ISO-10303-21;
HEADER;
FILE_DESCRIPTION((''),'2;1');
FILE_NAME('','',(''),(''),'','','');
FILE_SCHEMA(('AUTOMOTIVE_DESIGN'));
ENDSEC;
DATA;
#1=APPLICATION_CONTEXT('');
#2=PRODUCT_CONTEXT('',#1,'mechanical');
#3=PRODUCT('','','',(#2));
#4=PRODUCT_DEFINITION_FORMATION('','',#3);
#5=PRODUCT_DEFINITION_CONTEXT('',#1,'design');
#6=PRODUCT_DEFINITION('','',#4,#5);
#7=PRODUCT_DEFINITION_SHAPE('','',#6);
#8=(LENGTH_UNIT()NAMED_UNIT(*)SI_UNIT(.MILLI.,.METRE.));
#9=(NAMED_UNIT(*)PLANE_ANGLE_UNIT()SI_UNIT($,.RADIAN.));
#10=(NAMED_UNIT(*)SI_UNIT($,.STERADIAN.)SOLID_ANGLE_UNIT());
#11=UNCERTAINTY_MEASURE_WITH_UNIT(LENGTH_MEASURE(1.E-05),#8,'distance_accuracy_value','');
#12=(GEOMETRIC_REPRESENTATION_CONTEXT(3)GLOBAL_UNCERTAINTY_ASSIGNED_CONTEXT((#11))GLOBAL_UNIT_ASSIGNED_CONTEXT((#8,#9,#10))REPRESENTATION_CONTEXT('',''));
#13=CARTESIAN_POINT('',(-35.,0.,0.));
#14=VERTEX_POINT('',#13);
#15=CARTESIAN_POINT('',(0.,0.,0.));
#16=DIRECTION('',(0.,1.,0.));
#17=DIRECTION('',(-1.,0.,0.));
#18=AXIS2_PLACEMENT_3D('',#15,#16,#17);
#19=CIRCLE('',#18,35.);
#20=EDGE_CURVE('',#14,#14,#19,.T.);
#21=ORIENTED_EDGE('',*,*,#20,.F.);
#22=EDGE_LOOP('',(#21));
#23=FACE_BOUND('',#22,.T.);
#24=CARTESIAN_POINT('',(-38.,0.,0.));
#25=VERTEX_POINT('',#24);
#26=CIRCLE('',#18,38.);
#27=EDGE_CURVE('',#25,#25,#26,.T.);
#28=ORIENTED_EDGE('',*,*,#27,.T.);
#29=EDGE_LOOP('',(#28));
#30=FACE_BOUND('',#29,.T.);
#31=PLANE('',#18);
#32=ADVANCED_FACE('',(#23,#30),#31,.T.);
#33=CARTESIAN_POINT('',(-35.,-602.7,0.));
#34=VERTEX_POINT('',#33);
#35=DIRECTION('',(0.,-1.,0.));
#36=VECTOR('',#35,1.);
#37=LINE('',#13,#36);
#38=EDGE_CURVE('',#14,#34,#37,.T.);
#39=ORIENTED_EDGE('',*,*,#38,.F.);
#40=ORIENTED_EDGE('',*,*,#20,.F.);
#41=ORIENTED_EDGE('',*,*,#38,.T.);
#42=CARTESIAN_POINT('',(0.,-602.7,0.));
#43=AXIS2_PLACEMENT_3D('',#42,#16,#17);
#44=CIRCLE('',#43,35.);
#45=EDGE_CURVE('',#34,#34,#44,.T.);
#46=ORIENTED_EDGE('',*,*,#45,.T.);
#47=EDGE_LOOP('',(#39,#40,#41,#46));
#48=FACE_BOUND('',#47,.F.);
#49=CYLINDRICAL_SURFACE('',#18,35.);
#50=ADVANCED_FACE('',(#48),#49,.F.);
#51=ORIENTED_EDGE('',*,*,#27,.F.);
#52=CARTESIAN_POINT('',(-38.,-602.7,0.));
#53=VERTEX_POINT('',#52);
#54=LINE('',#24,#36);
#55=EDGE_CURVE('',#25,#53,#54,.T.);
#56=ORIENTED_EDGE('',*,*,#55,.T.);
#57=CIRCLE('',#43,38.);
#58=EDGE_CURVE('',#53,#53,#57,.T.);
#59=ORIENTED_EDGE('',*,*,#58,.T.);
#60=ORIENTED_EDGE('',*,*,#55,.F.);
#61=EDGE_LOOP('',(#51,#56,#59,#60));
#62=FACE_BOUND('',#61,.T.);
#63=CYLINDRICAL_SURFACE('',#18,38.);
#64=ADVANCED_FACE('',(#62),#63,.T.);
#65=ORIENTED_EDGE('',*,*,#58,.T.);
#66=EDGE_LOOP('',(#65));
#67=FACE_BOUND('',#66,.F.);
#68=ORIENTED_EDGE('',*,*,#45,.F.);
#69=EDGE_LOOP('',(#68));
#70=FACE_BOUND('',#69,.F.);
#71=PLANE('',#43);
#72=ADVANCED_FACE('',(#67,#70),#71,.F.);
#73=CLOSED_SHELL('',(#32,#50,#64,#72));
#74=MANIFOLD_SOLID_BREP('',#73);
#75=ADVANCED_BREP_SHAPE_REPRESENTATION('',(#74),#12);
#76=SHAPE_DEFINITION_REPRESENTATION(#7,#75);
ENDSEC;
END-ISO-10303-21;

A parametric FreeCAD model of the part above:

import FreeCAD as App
import Part
import Sketcher
from FreeCAD import Vector
Q = App.Units.Quantity

doc = App.newDocument("Part")
body = doc.addObject("PartDesign::Body", "Body")

sketch1 = doc.addObject("Sketcher::SketchObject", "Sketch")
body.addObject(sketch1)
sketch1.AttachmentSupport = (doc.XZ_Plane, [""])
sketch1.MapMode = "FlatFace"
sketch1.addGeometry(Part.Circle(Vector(0, 0, 0), Vector(0, 0, 1), 38), False)
sketch1.addGeometry(Part.Circle(Vector(0, 0, 0), Vector(0, 0, 1), 35), False)
sketch1.addConstraint(Sketcher.Constraint("Coincident", 0, 3, -1, 1))
sketch1.addConstraint(Sketcher.Constraint("Coincident", 1, 3, -1, 1))
sketch1.addConstraint(Sketcher.Constraint("Diameter", 0, Q("76 mm")))
sketch1.addConstraint(Sketcher.Constraint("Diameter", 1, Q("70 mm")))
pad1 = doc.addObject("PartDesign::Pad", "Pad")
body.addObject(pad1)
pad1.Profile = sketch1
pad1.Length = 602.7

doc.recompute()
